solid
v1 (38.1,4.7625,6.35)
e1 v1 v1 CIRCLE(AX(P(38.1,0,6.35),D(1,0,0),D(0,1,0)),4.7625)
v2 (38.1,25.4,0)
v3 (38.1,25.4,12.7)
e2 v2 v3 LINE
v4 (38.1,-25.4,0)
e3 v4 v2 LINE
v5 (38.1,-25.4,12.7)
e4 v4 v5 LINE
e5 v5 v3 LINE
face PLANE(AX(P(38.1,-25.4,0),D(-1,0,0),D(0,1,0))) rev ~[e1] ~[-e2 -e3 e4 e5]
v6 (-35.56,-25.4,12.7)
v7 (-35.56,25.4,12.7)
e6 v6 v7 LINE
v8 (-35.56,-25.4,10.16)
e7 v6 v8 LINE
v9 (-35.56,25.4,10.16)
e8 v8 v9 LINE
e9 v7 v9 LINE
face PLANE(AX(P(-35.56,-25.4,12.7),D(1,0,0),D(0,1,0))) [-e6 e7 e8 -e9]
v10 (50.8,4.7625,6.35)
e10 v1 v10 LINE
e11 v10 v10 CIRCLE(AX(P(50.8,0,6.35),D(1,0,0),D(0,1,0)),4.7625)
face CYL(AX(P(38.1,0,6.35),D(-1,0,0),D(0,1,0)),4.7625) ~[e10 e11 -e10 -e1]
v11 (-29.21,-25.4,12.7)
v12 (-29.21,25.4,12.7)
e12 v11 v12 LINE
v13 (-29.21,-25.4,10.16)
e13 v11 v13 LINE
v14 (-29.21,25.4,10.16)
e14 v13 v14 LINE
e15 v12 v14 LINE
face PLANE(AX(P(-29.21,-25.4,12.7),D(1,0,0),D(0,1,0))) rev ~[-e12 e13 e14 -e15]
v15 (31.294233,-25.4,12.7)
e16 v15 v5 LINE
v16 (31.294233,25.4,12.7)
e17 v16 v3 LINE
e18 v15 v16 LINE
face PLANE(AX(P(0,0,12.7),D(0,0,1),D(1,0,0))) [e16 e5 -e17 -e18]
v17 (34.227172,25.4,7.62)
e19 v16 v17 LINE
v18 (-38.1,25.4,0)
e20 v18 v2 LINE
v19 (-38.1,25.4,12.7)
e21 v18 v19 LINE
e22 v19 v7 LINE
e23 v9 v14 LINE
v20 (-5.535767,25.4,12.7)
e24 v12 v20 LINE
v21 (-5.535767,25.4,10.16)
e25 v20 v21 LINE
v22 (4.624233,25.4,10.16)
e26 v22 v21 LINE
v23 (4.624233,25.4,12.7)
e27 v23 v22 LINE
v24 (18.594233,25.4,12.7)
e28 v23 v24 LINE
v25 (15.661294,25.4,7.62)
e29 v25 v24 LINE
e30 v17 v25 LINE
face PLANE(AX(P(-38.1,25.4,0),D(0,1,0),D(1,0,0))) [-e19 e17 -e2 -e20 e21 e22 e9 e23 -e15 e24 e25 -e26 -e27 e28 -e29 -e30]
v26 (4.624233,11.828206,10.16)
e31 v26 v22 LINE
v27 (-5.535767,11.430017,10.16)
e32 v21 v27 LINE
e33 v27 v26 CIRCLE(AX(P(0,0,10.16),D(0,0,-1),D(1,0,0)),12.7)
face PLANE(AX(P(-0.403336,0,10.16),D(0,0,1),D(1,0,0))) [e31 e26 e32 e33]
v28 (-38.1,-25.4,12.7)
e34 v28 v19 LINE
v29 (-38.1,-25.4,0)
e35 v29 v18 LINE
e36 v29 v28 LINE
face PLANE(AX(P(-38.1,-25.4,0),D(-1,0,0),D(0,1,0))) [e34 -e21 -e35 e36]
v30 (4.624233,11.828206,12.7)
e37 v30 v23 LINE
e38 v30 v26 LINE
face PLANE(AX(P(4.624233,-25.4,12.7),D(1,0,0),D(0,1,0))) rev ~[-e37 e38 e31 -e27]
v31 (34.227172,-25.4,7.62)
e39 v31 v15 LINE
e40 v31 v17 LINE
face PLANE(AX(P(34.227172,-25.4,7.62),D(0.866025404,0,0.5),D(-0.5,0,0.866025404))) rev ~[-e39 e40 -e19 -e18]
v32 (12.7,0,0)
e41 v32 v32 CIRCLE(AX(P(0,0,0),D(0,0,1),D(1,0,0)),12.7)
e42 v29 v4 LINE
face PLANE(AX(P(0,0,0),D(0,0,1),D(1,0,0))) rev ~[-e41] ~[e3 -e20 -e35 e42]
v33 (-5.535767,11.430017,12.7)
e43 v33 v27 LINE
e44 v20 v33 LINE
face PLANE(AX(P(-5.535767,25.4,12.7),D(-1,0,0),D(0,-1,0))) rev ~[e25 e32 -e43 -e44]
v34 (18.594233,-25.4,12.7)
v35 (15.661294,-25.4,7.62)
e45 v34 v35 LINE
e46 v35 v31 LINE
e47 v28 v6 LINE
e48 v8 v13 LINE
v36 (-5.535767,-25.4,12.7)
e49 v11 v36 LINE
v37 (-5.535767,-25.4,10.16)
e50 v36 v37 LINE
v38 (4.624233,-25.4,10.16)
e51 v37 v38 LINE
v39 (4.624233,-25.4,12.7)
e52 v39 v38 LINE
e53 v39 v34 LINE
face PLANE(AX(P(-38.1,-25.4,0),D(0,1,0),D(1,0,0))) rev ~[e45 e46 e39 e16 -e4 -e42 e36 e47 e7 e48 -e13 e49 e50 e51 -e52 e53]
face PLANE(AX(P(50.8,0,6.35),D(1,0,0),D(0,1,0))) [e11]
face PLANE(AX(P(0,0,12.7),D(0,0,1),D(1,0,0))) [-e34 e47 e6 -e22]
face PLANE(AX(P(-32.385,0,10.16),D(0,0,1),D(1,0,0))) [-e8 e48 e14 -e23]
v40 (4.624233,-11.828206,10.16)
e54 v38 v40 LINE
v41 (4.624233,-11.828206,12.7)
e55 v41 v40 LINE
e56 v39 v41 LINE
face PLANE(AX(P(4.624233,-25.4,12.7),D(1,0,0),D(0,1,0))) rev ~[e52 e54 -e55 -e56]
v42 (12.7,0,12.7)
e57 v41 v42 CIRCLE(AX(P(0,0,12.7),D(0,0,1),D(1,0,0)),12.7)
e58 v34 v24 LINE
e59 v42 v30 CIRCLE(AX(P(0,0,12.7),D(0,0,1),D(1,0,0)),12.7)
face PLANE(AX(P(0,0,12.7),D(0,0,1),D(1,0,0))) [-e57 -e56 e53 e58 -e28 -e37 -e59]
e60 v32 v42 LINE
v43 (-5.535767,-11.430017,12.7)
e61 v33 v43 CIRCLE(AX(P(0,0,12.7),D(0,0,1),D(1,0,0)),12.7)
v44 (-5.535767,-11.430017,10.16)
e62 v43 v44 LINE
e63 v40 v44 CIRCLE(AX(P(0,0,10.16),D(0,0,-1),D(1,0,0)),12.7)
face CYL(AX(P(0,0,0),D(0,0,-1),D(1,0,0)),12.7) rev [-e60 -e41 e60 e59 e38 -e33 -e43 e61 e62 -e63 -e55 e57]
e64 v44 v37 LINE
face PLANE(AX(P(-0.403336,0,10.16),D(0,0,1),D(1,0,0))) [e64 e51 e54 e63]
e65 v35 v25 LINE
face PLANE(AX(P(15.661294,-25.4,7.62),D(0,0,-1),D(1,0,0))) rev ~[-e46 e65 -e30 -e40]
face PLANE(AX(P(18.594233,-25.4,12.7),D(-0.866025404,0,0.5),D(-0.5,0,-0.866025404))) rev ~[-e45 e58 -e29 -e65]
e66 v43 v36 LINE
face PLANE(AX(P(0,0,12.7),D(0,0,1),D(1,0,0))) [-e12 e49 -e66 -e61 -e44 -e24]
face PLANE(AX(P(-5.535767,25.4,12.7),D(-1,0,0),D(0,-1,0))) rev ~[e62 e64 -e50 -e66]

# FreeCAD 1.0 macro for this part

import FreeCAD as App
import Part
import Sketcher
Q = App.Units.Quantity

doc = App.newDocument("Part")
body = doc.addObject("PartDesign::Body", "Body")

# Sketch on XY plane
sketch1 = body.newObject("Sketcher::SketchObject", "Sketch")
sketch1.AttachmentSupport = (doc.getObject("XY_Plane"), [""])
sketch1.MapMode = "FlatFace"
sketch1.addGeometry([
    Part.LineSegment(App.Vector(-38.1, 25.4, 0), App.Vector(-38.1, -25.4, 0)),  # 0
    Part.LineSegment(App.Vector(-38.1, -25.4, 0), App.Vector(38.1, -25.4, 0)),  # 1
    Part.LineSegment(App.Vector(38.1, -25.4, 0), App.Vector(38.1, 25.4, 0)),  # 2
    Part.LineSegment(App.Vector(38.1, 25.4, 0), App.Vector(-38.1, 25.4, 0)),  # 3
    Part.Circle(App.Vector(0, 0, 0), App.Vector(0, 0, 1), 12.7),  # 4
], False)
sketch1.addConstraint([
    Sketcher.Constraint("Coincident", 0, 2, 1, 1),
    Sketcher.Constraint("Coincident", 1, 2, 2, 1),
    Sketcher.Constraint("Coincident", 2, 2, 3, 1),
    Sketcher.Constraint("Coincident", 3, 2, 0, 1),
    Sketcher.Constraint("Vertical", 0),
    Sketcher.Constraint("Horizontal", 1),
    Sketcher.Constraint("Vertical", 2),
    Sketcher.Constraint("Horizontal", 3),
    Sketcher.Constraint("Coincident", 4, 3, -1, 1),
    Sketcher.Constraint("Symmetric", 0, 2, 2, 2, -1, 1),
    Sketcher.Constraint("Diameter", 4, Q("1 in")),
    Sketcher.Constraint("DistanceX", 1, 1, 1, 2, Q("3 in")),
    Sketcher.Constraint("DistanceY", 0, 2, 0, 1, Q("2 in")),
])
pad1 = body.newObject("PartDesign::Pad", "Pad")
pad1.Profile = sketch1
pad1.Length = Q("0.5 in")

# Sketch on XY plane
sketch2 = body.newObject("Sketcher::SketchObject", "Sketch001")
sketch2.AttachmentSupport = (doc.getObject("XY_Plane"), [""])
sketch2.MapMode = "FlatFace"
sketch2.AttachmentOffset = App.Placement(App.Vector(0, 0, 0.5 * 25.4), App.Rotation())
sketch2.addGeometry([
    Part.LineSegment(App.Vector(-5.535767, -25.4, 0), App.Vector(4.624233, -25.4, 0)),  # 0
    Part.LineSegment(App.Vector(4.624233, -25.4, 0), App.Vector(4.624233, 25.4, 0)),  # 1
    Part.LineSegment(App.Vector(4.624233, 25.4, 0), App.Vector(-5.535767, 25.4, 0)),  # 2
    Part.LineSegment(App.Vector(-5.535767, 25.4, 0), App.Vector(-5.535767, -25.4, 0)),  # 3
    Part.LineSegment(App.Vector(-35.56, 25.4, 0), App.Vector(-35.56, -25.4, 0)),  # 4
    Part.LineSegment(App.Vector(-35.56, -25.4, 0), App.Vector(-29.21, -25.4, 0)),  # 5
    Part.LineSegment(App.Vector(-29.21, -25.4, 0), App.Vector(-29.21, 25.4, 0)),  # 6
    Part.LineSegment(App.Vector(-29.21, 25.4, 0), App.Vector(-35.56, 25.4, 0)),  # 7
], False)
sketch2.addConstraint([
    Sketcher.Constraint("Coincident", 0, 2, 1, 1),
    Sketcher.Constraint("Coincident", 1, 2, 2, 1),
    Sketcher.Constraint("Coincident", 2, 2, 3, 1),
    Sketcher.Constraint("Coincident", 3, 2, 0, 1),
    Sketcher.Constraint("Coincident", 4, 2, 5, 1),
    Sketcher.Constraint("Coincident", 5, 2, 6, 1),
    Sketcher.Constraint("Coincident", 6, 2, 7, 1),
    Sketcher.Constraint("Coincident", 7, 2, 4, 1),
    Sketcher.Constraint("Horizontal", 0),
    Sketcher.Constraint("Vertical", 1),
    Sketcher.Constraint("Horizontal", 2),
    Sketcher.Constraint("Vertical", 3),
    Sketcher.Constraint("Vertical", 4),
    Sketcher.Constraint("Horizontal", 5),
    Sketcher.Constraint("Vertical", 6),
    Sketcher.Constraint("Horizontal", 7),
    Sketcher.Constraint("Horizontal", 3, 2, 4, 2),
    Sketcher.Constraint("Horizontal", 2, 2, 6, 2),
    Sketcher.Constraint("DistanceY", 1, 1, 1, 2, Q("2 in")),
    Sketcher.Constraint("DistanceX", 0, 1, 0, 2, Q("0.4 in")),
    Sketcher.Constraint("DistanceY", 0, 2, -1, 1, Q("1 in")),
    Sketcher.Constraint("DistanceX", 5, 1, 5, 2, Q("0.25 in")),
    Sketcher.Constraint("DistanceX", 4, 2, -1, 1, Q("1.4 in")),
    Sketcher.Constraint("DistanceX", -1, 1, 0, 2, Q("4.624233 mm")),
])
pocket1 = body.newObject("PartDesign::Pocket", "Pocket")
pocket1.Profile = sketch2
pocket1.Length = Q("0.1 in")

# Sketch on XZ plane
sketch3 = body.newObject("Sketcher::SketchObject", "Sketch002")
sketch3.AttachmentSupport = (doc.getObject("XZ_Plane"), [""])
sketch3.MapMode = "FlatFace"
sketch3.AttachmentOffset = App.Placement(App.Vector(0, 0, 1 * 25.4), App.Rotation())
sketch3.addGeometry([
    Part.LineSegment(App.Vector(31.294233, 12.7, 0), App.Vector(18.594233, 12.7, 0)),
    Part.LineSegment(App.Vector(18.594233, 12.7, 0), App.Vector(15.661294, 7.62, 0)),
    Part.LineSegment(App.Vector(15.661294, 7.62, 0), App.Vector(34.227172, 7.62, 0)),
    Part.LineSegment(App.Vector(34.227172, 7.62, 0), App.Vector(31.294233, 12.7, 0)),
], False)
sketch3.addConstraint([
    Sketcher.Constraint("Coincident", 0, 2, 1, 1),
    Sketcher.Constraint("Coincident", 1, 2, 2, 1),
    Sketcher.Constraint("Coincident", 2, 2, 3, 1),
    Sketcher.Constraint("Coincident", 3, 2, 0, 1),
    Sketcher.Constraint("Horizontal", 0),
    Sketcher.Constraint("Horizontal", 2),
    Sketcher.Constraint("Equal", 1, 3),
    Sketcher.Constraint("DistanceX", 0, 2, 0, 1, Q("0.5 in")),
    Sketcher.Constraint("Angle", 1, Q("-120 deg")),
    Sketcher.Constraint("DistanceY", -1, 1, 0, 2, Q("0.5 in")),
    Sketcher.Constraint("DistanceY", -1, 1, 1, 2, Q("0.3 in")),
    Sketcher.Constraint("DistanceX", -1, 1, 0, 2, Q("18.594233 mm")),
])
pocket2 = body.newObject("PartDesign::Pocket", "Pocket001")
pocket2.Profile = sketch3
pocket2.Type = "ThroughAll"

# Sketch on YZ plane
sketch4 = body.newObject("Sketcher::SketchObject", "Sketch003")
sketch4.AttachmentSupport = (doc.getObject("YZ_Plane"), [""])
sketch4.MapMode = "FlatFace"
sketch4.AttachmentOffset = App.Placement(App.Vector(0, 0, 1.5 * 25.4), App.Rotation())
sketch4.addGeometry(Part.Circle(App.Vector(0, 6.35, 0), App.Vector(0, 0, 1), 4.7625), False)
sketch4.addConstraint([
    Sketcher.Constraint("PointOnObject", 0, 3, -2),
    Sketcher.Constraint("Diameter", 0, Q("0.375 in")),
    Sketcher.Constraint("DistanceY", -1, 1, 0, 3, Q("0.25 in")),
])
pad2 = body.newObject("PartDesign::Pad", "Pad001")
pad2.Profile = sketch4
pad2.Length = Q("0.5 in")

doc.recompute()
